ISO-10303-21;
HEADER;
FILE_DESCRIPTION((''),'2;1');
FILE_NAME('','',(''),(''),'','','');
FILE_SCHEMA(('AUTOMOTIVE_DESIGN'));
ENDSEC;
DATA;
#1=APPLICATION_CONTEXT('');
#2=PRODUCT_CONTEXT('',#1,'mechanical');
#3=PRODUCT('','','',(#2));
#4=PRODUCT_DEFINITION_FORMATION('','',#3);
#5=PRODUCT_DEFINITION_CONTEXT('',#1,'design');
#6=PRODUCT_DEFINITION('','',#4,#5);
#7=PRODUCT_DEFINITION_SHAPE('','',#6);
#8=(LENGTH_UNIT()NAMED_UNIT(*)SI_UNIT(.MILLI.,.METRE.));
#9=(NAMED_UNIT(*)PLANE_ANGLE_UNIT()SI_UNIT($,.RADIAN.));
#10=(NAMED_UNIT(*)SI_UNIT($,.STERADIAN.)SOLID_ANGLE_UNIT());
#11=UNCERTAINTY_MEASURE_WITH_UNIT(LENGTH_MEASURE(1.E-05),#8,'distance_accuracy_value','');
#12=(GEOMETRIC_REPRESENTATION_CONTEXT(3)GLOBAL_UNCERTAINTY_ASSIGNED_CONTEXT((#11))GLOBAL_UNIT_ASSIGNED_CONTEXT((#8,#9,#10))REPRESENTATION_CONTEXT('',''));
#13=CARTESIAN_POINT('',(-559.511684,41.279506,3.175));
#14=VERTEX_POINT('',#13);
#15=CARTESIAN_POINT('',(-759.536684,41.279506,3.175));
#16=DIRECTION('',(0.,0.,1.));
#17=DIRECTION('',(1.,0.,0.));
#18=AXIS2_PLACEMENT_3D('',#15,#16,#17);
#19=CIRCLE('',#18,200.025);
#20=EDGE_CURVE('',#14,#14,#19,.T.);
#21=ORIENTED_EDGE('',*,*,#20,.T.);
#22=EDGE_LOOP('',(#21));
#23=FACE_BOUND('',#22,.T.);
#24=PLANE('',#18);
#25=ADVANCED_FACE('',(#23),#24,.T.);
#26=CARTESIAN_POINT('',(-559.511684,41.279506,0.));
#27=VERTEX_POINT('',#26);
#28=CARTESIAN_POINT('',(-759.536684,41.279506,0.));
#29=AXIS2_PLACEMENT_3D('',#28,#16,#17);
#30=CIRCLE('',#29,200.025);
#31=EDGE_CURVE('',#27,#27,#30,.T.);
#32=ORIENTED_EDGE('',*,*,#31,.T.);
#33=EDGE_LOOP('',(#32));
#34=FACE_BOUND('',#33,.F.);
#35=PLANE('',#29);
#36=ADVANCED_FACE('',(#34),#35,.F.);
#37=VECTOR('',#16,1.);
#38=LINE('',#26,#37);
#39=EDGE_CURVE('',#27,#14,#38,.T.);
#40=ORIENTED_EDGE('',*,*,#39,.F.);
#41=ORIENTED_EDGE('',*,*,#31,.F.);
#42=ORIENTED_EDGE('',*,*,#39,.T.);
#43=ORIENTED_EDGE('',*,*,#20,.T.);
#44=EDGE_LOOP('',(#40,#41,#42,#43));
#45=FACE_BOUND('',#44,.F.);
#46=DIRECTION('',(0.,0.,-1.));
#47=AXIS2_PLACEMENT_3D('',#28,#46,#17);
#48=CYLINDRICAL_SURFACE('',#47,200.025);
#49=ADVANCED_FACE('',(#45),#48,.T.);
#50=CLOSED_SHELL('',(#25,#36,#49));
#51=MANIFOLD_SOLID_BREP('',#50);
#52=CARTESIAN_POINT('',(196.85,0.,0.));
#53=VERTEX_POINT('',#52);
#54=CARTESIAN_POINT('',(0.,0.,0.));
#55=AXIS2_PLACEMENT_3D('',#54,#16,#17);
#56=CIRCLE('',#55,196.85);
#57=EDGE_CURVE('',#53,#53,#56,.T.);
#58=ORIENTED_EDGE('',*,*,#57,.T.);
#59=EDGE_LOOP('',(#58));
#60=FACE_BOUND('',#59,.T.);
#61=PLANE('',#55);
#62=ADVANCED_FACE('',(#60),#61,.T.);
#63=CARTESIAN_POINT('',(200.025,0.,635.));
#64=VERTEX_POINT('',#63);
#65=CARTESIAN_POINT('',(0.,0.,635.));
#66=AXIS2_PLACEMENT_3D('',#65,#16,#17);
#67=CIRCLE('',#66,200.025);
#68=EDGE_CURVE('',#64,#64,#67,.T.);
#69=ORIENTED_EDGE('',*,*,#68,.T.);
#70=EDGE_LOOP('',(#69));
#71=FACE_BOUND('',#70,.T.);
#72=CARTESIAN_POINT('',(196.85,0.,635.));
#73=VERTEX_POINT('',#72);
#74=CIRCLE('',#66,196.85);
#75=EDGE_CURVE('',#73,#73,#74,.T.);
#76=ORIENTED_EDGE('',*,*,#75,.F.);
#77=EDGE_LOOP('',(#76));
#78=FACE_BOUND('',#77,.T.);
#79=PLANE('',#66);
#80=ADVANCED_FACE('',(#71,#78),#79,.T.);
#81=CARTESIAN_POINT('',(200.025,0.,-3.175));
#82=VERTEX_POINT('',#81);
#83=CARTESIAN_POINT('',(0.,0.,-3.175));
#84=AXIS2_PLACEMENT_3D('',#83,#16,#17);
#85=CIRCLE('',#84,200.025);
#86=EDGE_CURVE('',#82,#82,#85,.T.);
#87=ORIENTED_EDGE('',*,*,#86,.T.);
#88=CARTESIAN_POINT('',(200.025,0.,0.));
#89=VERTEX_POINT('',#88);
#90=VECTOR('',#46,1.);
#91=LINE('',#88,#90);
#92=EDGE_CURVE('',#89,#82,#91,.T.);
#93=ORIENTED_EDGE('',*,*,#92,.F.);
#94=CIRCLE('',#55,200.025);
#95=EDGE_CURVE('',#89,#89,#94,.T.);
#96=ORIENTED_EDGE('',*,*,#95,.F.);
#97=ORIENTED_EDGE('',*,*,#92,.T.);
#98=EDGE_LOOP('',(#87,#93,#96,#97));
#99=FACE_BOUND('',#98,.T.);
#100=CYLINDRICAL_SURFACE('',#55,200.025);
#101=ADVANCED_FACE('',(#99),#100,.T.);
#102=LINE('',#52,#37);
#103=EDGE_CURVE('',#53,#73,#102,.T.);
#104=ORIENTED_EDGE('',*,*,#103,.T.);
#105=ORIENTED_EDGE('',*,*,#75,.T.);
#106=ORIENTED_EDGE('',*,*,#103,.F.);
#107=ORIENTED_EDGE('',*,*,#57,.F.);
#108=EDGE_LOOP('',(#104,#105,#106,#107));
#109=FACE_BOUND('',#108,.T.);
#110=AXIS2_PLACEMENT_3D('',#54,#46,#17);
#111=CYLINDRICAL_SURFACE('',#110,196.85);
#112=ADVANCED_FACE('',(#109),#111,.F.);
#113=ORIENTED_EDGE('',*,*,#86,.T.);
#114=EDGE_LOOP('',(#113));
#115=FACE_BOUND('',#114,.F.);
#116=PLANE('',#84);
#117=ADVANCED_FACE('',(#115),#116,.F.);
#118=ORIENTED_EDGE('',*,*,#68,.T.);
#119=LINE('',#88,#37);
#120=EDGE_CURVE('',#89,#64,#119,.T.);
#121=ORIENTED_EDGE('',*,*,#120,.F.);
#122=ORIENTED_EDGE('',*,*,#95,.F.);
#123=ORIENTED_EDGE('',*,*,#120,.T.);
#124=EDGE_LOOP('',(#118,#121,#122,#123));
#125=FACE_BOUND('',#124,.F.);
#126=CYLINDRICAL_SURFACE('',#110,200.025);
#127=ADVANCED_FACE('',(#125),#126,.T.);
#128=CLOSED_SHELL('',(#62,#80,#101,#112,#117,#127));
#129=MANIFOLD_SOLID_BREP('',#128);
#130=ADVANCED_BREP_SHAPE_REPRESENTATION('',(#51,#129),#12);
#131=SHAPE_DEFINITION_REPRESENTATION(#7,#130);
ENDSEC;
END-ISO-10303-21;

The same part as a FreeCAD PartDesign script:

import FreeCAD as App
import Part
import Sketcher
from FreeCAD import Vector
Q = App.Units.Quantity

doc = App.newDocument("Part")
params = doc.addObject("Spreadsheet::Sheet", "Params")
for row, (alias, value) in enumerate([
    ("sketch1_diameter", "15.75 in"),
    ("pad1_length", "0.125 in"),
    ("sketch2_diameter", "15.5 in"),
    ("sketch2_diameter2", "15.75 in"),
    ("pad2_length", "25 in"),
    ("sketch3_diameter", "15.75 in"),
    ("pad3_length", "0.125 in"),
], start=1):
    params.set(f"A{row}", alias)
    params.set(f"B{row}", "=" + value)
    params.setAlias(f"B{row}", alias)

body = doc.addObject("PartDesign::Body", "Body")

# Sketch on XY plane
sketch1 = body.newObject("Sketcher::SketchObject", "Sketch")
sketch1.AttachmentSupport = (doc.getObject("XY_Plane"), [""])
sketch1.MapMode = "FlatFace"
sketch1.addGeometry(Part.Circle(Vector(0, 0, 0), Vector(0, 0, 1), 200.025), False)
sketch1.addConstraint([
    Sketcher.Constraint("Coincident", 0, 3, -1, 1),
    Sketcher.Constraint("Diameter", 0, Q("15.75 in")),
])
sketch1.setExpression("Constraints[1]", "Params.sketch1_diameter")
pad1 = body.newObject("PartDesign::Pad", "Pad")
pad1.Profile = sketch1
pad1.setExpression("Length", "Params.pad1_length")
pad1.Reversed = True

# Sketch on XY plane
sketch2 = body.newObject("Sketcher::SketchObject", "Sketch001")
sketch2.AttachmentSupport = (doc.getObject("XY_Plane"), [""])
sketch2.MapMode = "FlatFace"
sketch2.addGeometry([
    Part.Circle(Vector(0, 0, 0), Vector(0, 0, 1), 200.025),
    Part.Circle(Vector(0, 0, 0), Vector(0, 0, 1), 196.85),
], False)
sketch2.addConstraint([
    Sketcher.Constraint("Coincident", 0, 3, -1, 1),
    Sketcher.Constraint("Coincident", 1, 3, -1, 1),
    Sketcher.Constraint("Diameter", 1, Q("15.5 in")),
    Sketcher.Constraint("Diameter", 0, Q("15.75 in")),
])
sketch2.setExpression("Constraints[2]", "Params.sketch2_diameter")
sketch2.setExpression("Constraints[3]", "Params.sketch2_diameter2")
pad2 = body.newObject("PartDesign::Pad", "Pad001")
pad2.Profile = sketch2
pad2.setExpression("Length", "Params.pad2_length")
body2 = doc.addObject("PartDesign::Body", "Body001")

# Sketch on XY plane
sketch3 = body2.newObject("Sketcher::SketchObject", "Sketch002")
sketch3.AttachmentSupport = (doc.getObject("XY_Plane001"), [""])
sketch3.MapMode = "FlatFace"
sketch3.addGeometry(Part.Circle(Vector(-759.536684, 41.279506, 0), Vector(0, 0, 1), 200.025), False)
sketch3.addConstraint([
    Sketcher.Constraint("Diameter", 0, Q("15.75 in")),
    Sketcher.Constraint("DistanceX", 0, 3, -1, 1, 759.536684),
    Sketcher.Constraint("DistanceY", -1, 1, 0, 3, 41.279506),
])
sketch3.setExpression("Constraints[0]", "Params.sketch3_diameter")
pad3 = body2.newObject("PartDesign::Pad", "Pad002")
pad3.Profile = sketch3
pad3.setExpression("Length", "Params.pad3_length")

doc.recompute()
